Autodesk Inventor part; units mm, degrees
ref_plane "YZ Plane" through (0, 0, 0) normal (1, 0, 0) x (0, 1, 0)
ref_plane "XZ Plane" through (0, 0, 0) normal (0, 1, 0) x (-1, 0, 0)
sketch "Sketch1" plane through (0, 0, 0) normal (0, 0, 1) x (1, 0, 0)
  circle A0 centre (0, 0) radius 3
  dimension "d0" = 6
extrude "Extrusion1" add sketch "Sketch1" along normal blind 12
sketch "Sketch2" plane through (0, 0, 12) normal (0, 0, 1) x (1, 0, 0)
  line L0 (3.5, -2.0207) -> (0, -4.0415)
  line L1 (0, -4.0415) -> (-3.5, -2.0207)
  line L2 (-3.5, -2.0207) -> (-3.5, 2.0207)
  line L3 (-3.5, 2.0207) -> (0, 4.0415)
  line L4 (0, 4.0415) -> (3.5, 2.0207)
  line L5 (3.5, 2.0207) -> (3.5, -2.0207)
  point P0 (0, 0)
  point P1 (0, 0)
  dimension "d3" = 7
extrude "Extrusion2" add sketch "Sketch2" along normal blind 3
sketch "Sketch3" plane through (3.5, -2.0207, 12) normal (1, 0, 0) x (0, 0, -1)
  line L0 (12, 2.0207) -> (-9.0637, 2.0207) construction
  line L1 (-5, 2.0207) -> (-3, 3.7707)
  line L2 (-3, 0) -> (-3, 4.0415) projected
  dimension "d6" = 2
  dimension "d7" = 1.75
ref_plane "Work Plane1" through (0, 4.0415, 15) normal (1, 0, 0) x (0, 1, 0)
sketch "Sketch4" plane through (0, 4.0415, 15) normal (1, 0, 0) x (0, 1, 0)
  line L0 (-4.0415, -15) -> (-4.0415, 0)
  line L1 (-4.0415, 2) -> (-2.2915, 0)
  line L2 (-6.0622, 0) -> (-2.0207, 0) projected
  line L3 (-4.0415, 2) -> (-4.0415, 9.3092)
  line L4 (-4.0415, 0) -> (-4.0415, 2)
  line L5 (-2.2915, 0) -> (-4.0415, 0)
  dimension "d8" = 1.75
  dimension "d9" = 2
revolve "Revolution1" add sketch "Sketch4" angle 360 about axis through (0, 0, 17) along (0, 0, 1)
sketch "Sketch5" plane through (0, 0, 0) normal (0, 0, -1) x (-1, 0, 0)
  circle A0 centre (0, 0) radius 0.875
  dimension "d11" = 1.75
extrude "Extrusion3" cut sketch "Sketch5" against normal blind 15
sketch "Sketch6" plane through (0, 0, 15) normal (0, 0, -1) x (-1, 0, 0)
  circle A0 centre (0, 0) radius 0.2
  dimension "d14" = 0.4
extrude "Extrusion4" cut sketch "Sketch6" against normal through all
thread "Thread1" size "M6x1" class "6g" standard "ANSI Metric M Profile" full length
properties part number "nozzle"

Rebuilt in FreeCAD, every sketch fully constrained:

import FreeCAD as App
import Part
import Sketcher
from FreeCAD import Vector
Q = App.Units.Quantity

doc = App.newDocument("Part")
params = doc.addObject("Spreadsheet::Sheet", "Params")
for row, (alias, value) in enumerate([
    ("sketch1_diameter", "6 mm"),
    ("pad1_length", "12 mm"),
    ("pad2_length", "3 mm"),
    ("sketch3_height", "2 mm"),
    ("sketch3_width", "1.75 mm"),
    ("revolution_angle", "360 deg"),
    ("sketch4_diameter", "1.75 mm"),
    ("pocket1_length", "15 mm"),
    ("sketch5_diameter", "0.4 mm"),
], start=1):
    params.set(f"A{row}", alias)
    params.set(f"B{row}", "=" + value)
    params.setAlias(f"B{row}", alias)

body = doc.addObject("PartDesign::Body", "Body")

sketch1 = doc.addObject("Sketcher::SketchObject", "Sketch")
body.addObject(sketch1)
sketch1.AttachmentSupport = (doc.XY_Plane, [""])
sketch1.MapMode = "FlatFace"
sketch1.addGeometry(Part.Circle(Vector(0, 0, 0), Vector(0, 0, 1), 3), False)
sketch1.addConstraint(Sketcher.Constraint("Coincident", 0, 3, -1, 1))
sketch1.addConstraint(Sketcher.Constraint("Diameter", 0, 6.0))
sketch1.setExpression("Constraints[1]", "Params.sketch1_diameter")
pad1 = doc.addObject("PartDesign::Pad", "Pad")
body.addObject(pad1)
pad1.Profile = sketch1
pad1.setExpression("Length", "Params.pad1_length")

sketch2 = doc.addObject("Sketcher::SketchObject", "Sketch001")
body.addObject(sketch2)
sketch2.AttachmentSupport = (doc.XY_Plane, [""])
sketch2.MapMode = "FlatFace"
sketch2.AttachmentOffset = App.Placement(Vector(0, 0, 12), App.Rotation())
sketch2.addGeometry(Part.LineSegment(Vector(0, -4, 0), Vector(3.5, -2, 0)), False)
sketch2.addGeometry(Part.LineSegment(Vector(3.5, -2, 0), Vector(3.5, 2, 0)), False)
sketch2.addGeometry(Part.LineSegment(Vector(3.5, 2, 0), Vector(0, 4, 0)), False)
sketch2.addGeometry(Part.LineSegment(Vector(0, 4, 0), Vector(-3.5, 2, 0)), False)
sketch2.addGeometry(Part.LineSegment(Vector(-3.5, 2, 0), Vector(-3.5, -2, 0)), False)
sketch2.addGeometry(Part.LineSegment(Vector(-3.5, -2, 0), Vector(0, -4, 0)), False)
sketch2.addConstraint(Sketcher.Constraint("Coincident", 0, 2, 1, 1))
sketch2.addConstraint(Sketcher.Constraint("Coincident", 1, 2, 2, 1))
sketch2.addConstraint(Sketcher.Constraint("Coincident", 2, 2, 3, 1))
sketch2.addConstraint(Sketcher.Constraint("Coincident", 3, 2, 4, 1))
sketch2.addConstraint(Sketcher.Constraint("Coincident", 4, 2, 5, 1))
sketch2.addConstraint(Sketcher.Constraint("Coincident", 5, 2, 0, 1))
sketch2.addConstraint(Sketcher.Constraint("Vertical", 1))
sketch2.addConstraint(Sketcher.Constraint("Vertical", 4))
sketch2.addConstraint(Sketcher.Constraint("Symmetric", 0, 2, 3, 2, -1, 1))
sketch2.addConstraint(Sketcher.Constraint("Symmetric", 2, 2, 5, 2, -1, 1))
sketch2.addConstraint(Sketcher.Constraint("PointOnObject", 2, 2, -2))
sketch2.addConstraint(Sketcher.Constraint("Parallel", 2, 5))
sketch2.addConstraint(Sketcher.Constraint("Horizontal", 1, 2, 3, 2))
sketch2.addConstraint(Sketcher.Constraint("DistanceX", 3, 2, 1, 2, 7.0))
sketch2.addConstraint(Sketcher.Constraint("Angle", 0, Q("30.001 deg")))
sketch2.addConstraint(Sketcher.Constraint("DistanceY", 1, 1, 1, 2, 4.0414))
pad2 = doc.addObject("PartDesign::Pad", "Pad001")
body.addObject(pad2)
pad2.Profile = sketch2
pad2.setExpression("Length", "Params.pad2_length")

sketch3 = doc.addObject("Sketcher::SketchObject", "Sketch002")
body.addObject(sketch3)
sketch3.AttachmentSupport = (doc.YZ_Plane, [""])
sketch3.MapMode = "FlatFace"
sketch3.addGeometry(Part.LineSegment(Vector(1.8, 15, 0), Vector(0, 17, 0)), False)
sketch3.addGeometry(Part.LineSegment(Vector(0, 17, 0), Vector(0, 15, 0)), False)
sketch3.addGeometry(Part.LineSegment(Vector(0, 15, 0), Vector(1.8, 15, 0)), False)
sketch3.addConstraint(Sketcher.Constraint("Coincident", 0, 2, 1, 1))
sketch3.addConstraint(Sketcher.Constraint("Coincident", 1, 2, 2, 1))
sketch3.addConstraint(Sketcher.Constraint("Coincident", 2, 2, 0, 1))
sketch3.addConstraint(Sketcher.Constraint("Vertical", 1))
sketch3.addConstraint(Sketcher.Constraint("Horizontal", 2))
sketch3.addConstraint(Sketcher.Constraint("PointOnObject", 0, 2, -2))
sketch3.addConstraint(Sketcher.Constraint("DistanceY", 1, 2, 1, 1, 2.0))
sketch3.addConstraint(Sketcher.Constraint("DistanceX", 2, 1, 2, 2, 1.75))
sketch3.addConstraint(Sketcher.Constraint("DistanceY", -1, 1, 0, 2, 17.0))
sketch3.setExpression("Constraints[6]", "Params.sketch3_height")
sketch3.setExpression("Constraints[7]", "Params.sketch3_width")
revolution = doc.addObject("PartDesign::Revolution", "Revolution")
body.addObject(revolution)
revolution.Profile = sketch3
revolution.ReferenceAxis = (sketch3, ["V_Axis"])
revolution.setExpression("Angle", "Params.revolution_angle")

sketch4 = doc.addObject("Sketcher::SketchObject", "Sketch003")
body.addObject(sketch4)
sketch4.AttachmentSupport = (doc.XY_Plane, [""])
sketch4.MapMode = "FlatFace"
sketch4.addGeometry(Part.Circle(Vector(0, 0, 0), Vector(0, 0, 1), 0.9), False)
sketch4.addConstraint(Sketcher.Constraint("Coincident", 0, 3, -1, 1))
sketch4.addConstraint(Sketcher.Constraint("Diameter", 0, 1.75))
sketch4.setExpression("Constraints[1]", "Params.sketch4_diameter")
pocket1 = doc.addObject("PartDesign::Pocket", "Pocket")
body.addObject(pocket1)
pocket1.Profile = sketch4
pocket1.setExpression("Length", "Params.pocket1_length")
pocket1.Reversed = True

sketch5 = doc.addObject("Sketcher::SketchObject", "Sketch004")
body.addObject(sketch5)
sketch5.AttachmentSupport = (doc.XY_Plane, [""])
sketch5.MapMode = "FlatFace"
sketch5.AttachmentOffset = App.Placement(Vector(0, 0, 15), App.Rotation())
sketch5.addGeometry(Part.Circle(Vector(0, 0, 0), Vector(0, 0, 1), 0.2), False)
sketch5.addConstraint(Sketcher.Constraint("Coincident", 0, 3, -1, 1))
sketch5.addConstraint(Sketcher.Constraint("Diameter", 0, 0.4))
sketch5.setExpression("Constraints[1]", "Params.sketch5_diameter")
pocket2 = doc.addObject("PartDesign::Pocket", "Pocket001")
body.addObject(pocket2)
pocket2.Profile = sketch5
pocket2.Type = "ThroughAll"
pocket2.Reversed = True

doc.recompute()
